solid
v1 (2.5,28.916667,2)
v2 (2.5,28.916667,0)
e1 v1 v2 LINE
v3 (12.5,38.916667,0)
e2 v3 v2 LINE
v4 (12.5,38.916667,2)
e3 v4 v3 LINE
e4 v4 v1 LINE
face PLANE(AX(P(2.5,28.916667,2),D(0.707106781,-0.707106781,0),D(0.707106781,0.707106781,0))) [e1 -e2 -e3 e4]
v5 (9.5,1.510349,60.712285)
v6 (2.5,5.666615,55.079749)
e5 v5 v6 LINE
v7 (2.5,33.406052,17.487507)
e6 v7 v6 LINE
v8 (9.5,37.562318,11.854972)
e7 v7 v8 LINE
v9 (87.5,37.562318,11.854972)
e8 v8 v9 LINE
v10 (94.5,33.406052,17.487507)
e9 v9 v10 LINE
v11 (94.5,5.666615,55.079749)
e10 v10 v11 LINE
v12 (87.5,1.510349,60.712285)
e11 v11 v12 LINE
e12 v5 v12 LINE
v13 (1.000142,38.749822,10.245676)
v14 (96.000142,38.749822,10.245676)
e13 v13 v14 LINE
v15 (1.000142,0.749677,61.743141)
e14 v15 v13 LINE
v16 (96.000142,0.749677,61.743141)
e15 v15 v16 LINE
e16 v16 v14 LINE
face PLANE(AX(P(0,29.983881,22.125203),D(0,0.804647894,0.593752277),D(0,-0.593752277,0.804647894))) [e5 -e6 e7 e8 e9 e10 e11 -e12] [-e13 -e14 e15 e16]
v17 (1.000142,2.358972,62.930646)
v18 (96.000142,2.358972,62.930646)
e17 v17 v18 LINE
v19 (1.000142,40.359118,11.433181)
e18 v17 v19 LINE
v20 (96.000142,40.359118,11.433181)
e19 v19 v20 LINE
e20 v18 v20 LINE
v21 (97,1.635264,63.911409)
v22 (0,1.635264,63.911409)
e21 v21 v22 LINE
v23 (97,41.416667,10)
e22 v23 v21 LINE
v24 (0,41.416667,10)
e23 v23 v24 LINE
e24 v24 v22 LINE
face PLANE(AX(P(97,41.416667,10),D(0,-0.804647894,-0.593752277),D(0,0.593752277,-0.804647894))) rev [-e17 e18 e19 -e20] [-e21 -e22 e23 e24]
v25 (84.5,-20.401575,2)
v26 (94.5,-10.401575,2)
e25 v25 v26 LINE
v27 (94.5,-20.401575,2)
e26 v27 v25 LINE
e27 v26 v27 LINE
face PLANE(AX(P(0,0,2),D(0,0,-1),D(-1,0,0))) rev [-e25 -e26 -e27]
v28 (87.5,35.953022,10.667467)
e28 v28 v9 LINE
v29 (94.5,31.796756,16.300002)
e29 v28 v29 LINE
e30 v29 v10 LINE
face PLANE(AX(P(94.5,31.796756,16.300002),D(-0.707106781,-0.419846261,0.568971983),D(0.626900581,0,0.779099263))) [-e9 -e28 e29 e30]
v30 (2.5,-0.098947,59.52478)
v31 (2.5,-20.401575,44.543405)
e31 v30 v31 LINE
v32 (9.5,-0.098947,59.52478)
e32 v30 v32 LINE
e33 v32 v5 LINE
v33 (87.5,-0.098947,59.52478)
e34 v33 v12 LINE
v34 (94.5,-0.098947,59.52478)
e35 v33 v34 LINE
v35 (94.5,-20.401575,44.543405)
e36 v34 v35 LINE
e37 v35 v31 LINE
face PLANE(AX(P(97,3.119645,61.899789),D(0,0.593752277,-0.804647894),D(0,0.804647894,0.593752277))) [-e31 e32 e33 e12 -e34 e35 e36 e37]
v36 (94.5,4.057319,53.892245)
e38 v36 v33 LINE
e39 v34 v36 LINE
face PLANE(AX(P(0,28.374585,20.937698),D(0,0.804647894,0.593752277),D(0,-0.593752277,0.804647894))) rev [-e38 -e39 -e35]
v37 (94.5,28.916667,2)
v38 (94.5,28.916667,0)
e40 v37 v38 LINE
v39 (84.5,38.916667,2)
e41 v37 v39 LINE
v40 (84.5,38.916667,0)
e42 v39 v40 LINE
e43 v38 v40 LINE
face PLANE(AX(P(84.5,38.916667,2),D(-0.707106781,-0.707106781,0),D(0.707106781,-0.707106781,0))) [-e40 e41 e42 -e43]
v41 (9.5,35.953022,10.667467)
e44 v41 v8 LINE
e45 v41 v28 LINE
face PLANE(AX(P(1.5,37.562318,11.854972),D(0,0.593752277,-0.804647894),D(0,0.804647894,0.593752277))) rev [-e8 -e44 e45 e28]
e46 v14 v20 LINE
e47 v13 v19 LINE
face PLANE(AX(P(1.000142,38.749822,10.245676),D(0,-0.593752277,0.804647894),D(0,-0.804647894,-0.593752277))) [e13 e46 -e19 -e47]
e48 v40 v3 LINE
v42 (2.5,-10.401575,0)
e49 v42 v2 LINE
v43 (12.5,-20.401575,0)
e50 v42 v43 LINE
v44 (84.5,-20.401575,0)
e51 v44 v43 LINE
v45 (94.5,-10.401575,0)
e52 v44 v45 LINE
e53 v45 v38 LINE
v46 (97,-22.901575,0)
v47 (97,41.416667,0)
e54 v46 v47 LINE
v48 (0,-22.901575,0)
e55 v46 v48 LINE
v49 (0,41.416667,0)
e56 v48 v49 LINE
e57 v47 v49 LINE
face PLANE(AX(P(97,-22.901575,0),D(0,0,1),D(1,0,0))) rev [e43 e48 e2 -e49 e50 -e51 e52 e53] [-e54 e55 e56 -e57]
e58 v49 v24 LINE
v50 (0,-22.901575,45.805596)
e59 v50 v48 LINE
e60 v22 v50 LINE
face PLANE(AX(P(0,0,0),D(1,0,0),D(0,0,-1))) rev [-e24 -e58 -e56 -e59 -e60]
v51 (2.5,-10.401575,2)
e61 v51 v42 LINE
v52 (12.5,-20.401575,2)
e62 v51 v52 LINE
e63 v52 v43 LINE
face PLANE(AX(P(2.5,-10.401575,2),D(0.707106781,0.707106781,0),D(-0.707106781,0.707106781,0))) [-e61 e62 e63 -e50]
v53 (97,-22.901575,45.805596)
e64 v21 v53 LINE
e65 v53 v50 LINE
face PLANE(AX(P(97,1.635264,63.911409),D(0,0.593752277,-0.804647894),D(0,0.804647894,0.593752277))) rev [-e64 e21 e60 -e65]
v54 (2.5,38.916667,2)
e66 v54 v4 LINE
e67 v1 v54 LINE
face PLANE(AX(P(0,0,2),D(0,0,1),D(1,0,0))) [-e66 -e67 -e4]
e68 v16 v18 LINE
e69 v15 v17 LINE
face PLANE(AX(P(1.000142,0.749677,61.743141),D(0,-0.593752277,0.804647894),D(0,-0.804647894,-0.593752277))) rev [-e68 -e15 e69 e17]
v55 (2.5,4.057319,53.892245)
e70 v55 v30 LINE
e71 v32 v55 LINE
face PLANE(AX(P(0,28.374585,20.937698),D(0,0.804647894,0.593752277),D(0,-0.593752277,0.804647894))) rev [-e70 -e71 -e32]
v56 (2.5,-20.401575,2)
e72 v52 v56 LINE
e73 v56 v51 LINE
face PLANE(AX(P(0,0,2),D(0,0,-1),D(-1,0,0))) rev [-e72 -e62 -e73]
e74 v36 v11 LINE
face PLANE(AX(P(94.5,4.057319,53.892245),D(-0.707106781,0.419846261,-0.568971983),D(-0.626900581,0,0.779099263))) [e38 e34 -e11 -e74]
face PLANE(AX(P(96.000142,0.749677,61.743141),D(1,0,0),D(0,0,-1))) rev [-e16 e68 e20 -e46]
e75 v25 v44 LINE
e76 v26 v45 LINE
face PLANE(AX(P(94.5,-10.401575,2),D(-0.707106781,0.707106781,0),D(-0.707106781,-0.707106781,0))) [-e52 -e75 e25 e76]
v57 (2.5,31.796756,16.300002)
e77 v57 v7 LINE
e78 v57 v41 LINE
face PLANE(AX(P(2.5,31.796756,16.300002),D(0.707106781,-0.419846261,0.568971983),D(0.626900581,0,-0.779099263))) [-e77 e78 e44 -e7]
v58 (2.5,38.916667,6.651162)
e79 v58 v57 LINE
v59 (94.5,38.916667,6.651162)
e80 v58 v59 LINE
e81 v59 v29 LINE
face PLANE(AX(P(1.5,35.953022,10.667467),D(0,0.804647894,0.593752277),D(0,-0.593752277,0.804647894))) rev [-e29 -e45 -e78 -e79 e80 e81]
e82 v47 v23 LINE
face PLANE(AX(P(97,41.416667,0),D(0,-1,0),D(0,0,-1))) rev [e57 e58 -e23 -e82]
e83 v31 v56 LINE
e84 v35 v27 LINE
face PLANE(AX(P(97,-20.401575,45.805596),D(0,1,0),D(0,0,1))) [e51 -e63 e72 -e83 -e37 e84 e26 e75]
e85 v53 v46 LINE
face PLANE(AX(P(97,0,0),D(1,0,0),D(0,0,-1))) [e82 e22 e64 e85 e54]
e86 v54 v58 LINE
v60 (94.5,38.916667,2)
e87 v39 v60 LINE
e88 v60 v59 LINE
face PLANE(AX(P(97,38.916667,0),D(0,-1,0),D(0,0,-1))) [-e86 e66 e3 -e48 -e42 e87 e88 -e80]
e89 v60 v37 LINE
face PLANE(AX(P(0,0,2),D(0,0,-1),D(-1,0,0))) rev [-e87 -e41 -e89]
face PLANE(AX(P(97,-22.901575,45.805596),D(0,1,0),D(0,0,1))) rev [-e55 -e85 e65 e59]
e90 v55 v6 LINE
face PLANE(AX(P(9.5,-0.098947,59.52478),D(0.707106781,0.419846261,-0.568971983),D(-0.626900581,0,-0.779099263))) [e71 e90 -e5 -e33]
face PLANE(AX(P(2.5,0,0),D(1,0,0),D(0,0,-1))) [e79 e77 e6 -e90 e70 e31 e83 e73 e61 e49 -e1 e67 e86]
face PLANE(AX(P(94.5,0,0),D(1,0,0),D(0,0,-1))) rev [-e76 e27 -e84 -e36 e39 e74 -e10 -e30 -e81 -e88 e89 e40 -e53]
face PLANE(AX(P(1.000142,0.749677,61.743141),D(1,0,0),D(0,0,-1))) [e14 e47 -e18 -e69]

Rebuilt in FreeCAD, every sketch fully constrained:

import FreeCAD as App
import Part
import Sketcher
from FreeCAD import Vector
Q = App.Units.Quantity


def faces_at(feature, points):
    """Names of the faces that lie closest to the given points."""
    faces = feature.Shape.Faces
    near = lambda p: min(range(len(faces)), key=lambda i: faces[i].distToShape(Part.Vertex(*p))[0])
    return sorted({f"Face{near(p) + 1}" for p in points})

doc = App.newDocument("Part")
body = doc.addObject("PartDesign::Body", "Body")

sketch1 = doc.addObject("Sketcher::SketchObject", "Sketch")
body.addObject(sketch1)
sketch1.AttachmentSupport = (doc.YZ_Plane, [""])
sketch1.MapMode = "FlatFace"
sketch1.addGeometry(Part.LineSegment(Vector(41.416667, 0, 0), Vector(41.416667, 10, 0)), False)
sketch1.addGeometry(Part.LineSegment(Vector(41.416667, 10, 0), Vector(1.635264, 63.911409, 0)), False)
sketch1.addGeometry(Part.LineSegment(Vector(1.635264, 63.911409, 0), Vector(-22.901575, 45.805596, 0)), False)
sketch1.addGeometry(Part.LineSegment(Vector(-22.901575, 45.805596, 0), Vector(-22.901575, 0, 0)), False)
sketch1.addGeometry(Part.LineSegment(Vector(-22.901575, 0, 0), Vector(41.416667, 0, 0)), False)
sketch1.addConstraint(Sketcher.Constraint("Coincident", 0, 2, 1, 1))
sketch1.addConstraint(Sketcher.Constraint("Coincident", 1, 2, 2, 1))
sketch1.addConstraint(Sketcher.Constraint("Coincident", 2, 2, 3, 1))
sketch1.addConstraint(Sketcher.Constraint("Coincident", 3, 2, 4, 1))
sketch1.addConstraint(Sketcher.Constraint("Coincident", 4, 2, 0, 1))
sketch1.addConstraint(Sketcher.Constraint("Vertical", 0))
sketch1.addConstraint(Sketcher.Constraint("Vertical", 3))
sketch1.addConstraint(Sketcher.Constraint("Horizontal", 4))
sketch1.addConstraint(Sketcher.Constraint("PointOnObject", 3, 2, -1))
sketch1.addConstraint(Sketcher.Constraint("Perpendicular", 1, 2))
sketch1.addConstraint(Sketcher.Constraint("DistanceY", 0, 1, 0, 2, Q("10 mm")))
sketch1.addConstraint(Sketcher.Constraint("Distance", 1, Q("67 mm")))
sketch1.addConstraint(Sketcher.Constraint("DistanceX", 4, 1, 4, 2, Q("64.318242 mm")))
sketch1.addConstraint(Sketcher.Constraint("DistanceY", 3, 2, 3, 1, Q("45.805596 mm")))
sketch1.addConstraint(Sketcher.Constraint("DistanceX", -1, 1, 0, 2, Q("41.416667 mm")))
pad1 = doc.addObject("PartDesign::Pad", "Pad")
body.addObject(pad1)
pad1.Profile = sketch1
pad1.Length = 97
doc.recompute()

thickness = doc.addObject("PartDesign::Thickness", "Thickness")
body.addObject(thickness)
thickness.Base = (pad1, faces_at(pad1, [(48.5, 9.258, 0), (48.5, 21.526, 36.956)]))
thickness.Value = 2.5
thickness.Reversed = True
thickness.Join = "Intersection"

sketch2 = doc.addObject("Sketcher::SketchObject", "Sketch001")
body.addObject(sketch2)
sketch2.Placement = App.Placement(Vector(0, 31.593177, 23.312707), App.Rotation(Vector(1, 0, 0), Vector(0, 0.593752277, -0.804647894), Vector(0, 0.804647894, 0.593752277), "ZXY"))
sketch2.addGeometry(Part.LineSegment(Vector(1.000142, 14.763634, 0), Vector(1.000142, -49.236366, 0)), False)
sketch2.addGeometry(Part.LineSegment(Vector(1.000142, -49.236366, 0), Vector(96.000142, -49.236366, 0)), False)
sketch2.addGeometry(Part.LineSegment(Vector(96.000142, -49.236366, 0), Vector(96.000142, 14.763634, 0)), False)
sketch2.addGeometry(Part.LineSegment(Vector(96.000142, 14.763634, 0), Vector(1.000142, 14.763634, 0)), False)
sketch2.addConstraint(Sketcher.Constraint("Coincident", 0, 2, 1, 1))
sketch2.addConstraint(Sketcher.Constraint("Coincident", 1, 2, 2, 1))
sketch2.addConstraint(Sketcher.Constraint("Coincident", 2, 2, 3, 1))
sketch2.addConstraint(Sketcher.Constraint("Coincident", 3, 2, 0, 1))
sketch2.addConstraint(Sketcher.Constraint("Vertical", 0))
sketch2.addConstraint(Sketcher.Constraint("Horizontal", 1))
sketch2.addConstraint(Sketcher.Constraint("Vertical", 2))
sketch2.addConstraint(Sketcher.Constraint("Horizontal", 3))
sketch2.addConstraint(Sketcher.Constraint("DistanceX", 1, 1, 1, 2, Q("95 mm")))
sketch2.addConstraint(Sketcher.Constraint("DistanceY", 0, 2, 0, 1, Q("64 mm")))
sketch2.addConstraint(Sketcher.Constraint("DistanceX", -1, 1, 0, 2, Q("1.000142 mm")))
sketch2.addConstraint(Sketcher.Constraint("DistanceY", 0, 2, -1, 1, Q("49.236366 mm")))
pocket1 = doc.addObject("PartDesign::Pocket", "Pocket")
body.addObject(pocket1)
pocket1.Profile = sketch2
pocket1.Length = 2

sketch3 = doc.addObject("Sketcher::SketchObject", "Sketch002")
body.addObject(sketch3)
sketch3.AttachmentSupport = (doc.YZ_Plane, [""])
sketch3.MapMode = "FlatFace"
sketch3.AttachmentOffset = App.Placement(Vector(0, 0, 94.5), App.Rotation())
sketch3.addGeometry(Part.LineSegment(Vector(37.562318, 11.854972, 0), Vector(38.749822, 10.245676, 0)), False)
sketch3.addGeometry(Part.LineSegment(Vector(38.749822, 10.245676, 0), Vector(38.916667, 10.368791, 0)), False)
sketch3.addGeometry(Part.LineSegment(Vector(38.916667, 10.368791, 0), Vector(38.916667, 6.651162, 0)), False)
sketch3.addGeometry(Part.LineSegment(Vector(38.916667, 6.651162, 0), Vector(35.953022, 10.667467, 0)), False)
sketch3.addGeometry(Part.LineSegment(Vector(35.953022, 10.667467, 0), Vector(37.562318, 11.854972, 0)), False)
sketch3.addConstraint(Sketcher.Constraint("Coincident", 0, 2, 1, 1))
sketch3.addConstraint(Sketcher.Constraint("Coincident", 1, 2, 2, 1))
sketch3.addConstraint(Sketcher.Constraint("Coincident", 2, 2, 3, 1))
sketch3.addConstraint(Sketcher.Constraint("Coincident", 3, 2, 4, 1))
sketch3.addConstraint(Sketcher.Constraint("Coincident", 4, 2, 0, 1))
sketch3.addConstraint(Sketcher.Constraint("Vertical", 2))
sketch3.addConstraint(Sketcher.Constraint("Perpendicular", 0, 1))
sketch3.addConstraint(Sketcher.Constraint("Perpendicular", 1, 3))
sketch3.addConstraint(Sketcher.Constraint("Perpendicular", 3, 4))
sketch3.addConstraint(Sketcher.Constraint("Equal", 0, 4))
sketch3.addConstraint(Sketcher.Constraint("Distance", 0, Q("2 mm")))
sketch3.addConstraint(Sketcher.Constraint("DistanceY", 2, 2, 2, 1, Q("3.717629 mm")))
sketch3.addConstraint(Sketcher.Constraint("DistanceX", 3, 2, 0, 2, Q("2.7968 mm")))
sketch3.addConstraint(Sketcher.Constraint("DistanceY", -1, 1, 1, 2, Q("10.368791 mm")))
sketch3.addConstraint(Sketcher.Constraint("DistanceX", -1, 1, 3, 2, Q("35.953022 mm")))
pad2 = doc.addObject("PartDesign::Pad", "Pad001")
body.addObject(pad2)
pad2.Profile = sketch3
pad2.Length = 93
pad2.Reversed = True

sketch4 = doc.addObject("Sketcher::SketchObject", "Sketch003")
body.addObject(sketch4)
sketch4.AttachmentSupport = (doc.XY_Plane, [""])
sketch4.MapMode = "FlatFace"
sketch4.addGeometry(Part.LineSegment(Vector(84.5, -20.401575, 0), Vector(94.5, -10.401575, 0)), False)
sketch4.addGeometry(Part.LineSegment(Vector(94.5, -10.401575, 0), Vector(94.5, -20.401575, 0)), False)
sketch4.addGeometry(Part.LineSegment(Vector(94.5, -20.401575, 0), Vector(84.5, -20.401575, 0)), False)
sketch4.addGeometry(Part.LineSegment(Vector(94.5, 28.916667, 0), Vector(84.5, 38.916667, 0)), False)
sketch4.addGeometry(Part.LineSegment(Vector(84.5, 38.916667, 0), Vector(94.5, 38.916667, 0)), False)
sketch4.addGeometry(Part.LineSegment(Vector(94.5, 38.916667, 0), Vector(94.5, 28.916667, 0)), False)
sketch4.addGeometry(Part.LineSegment(Vector(2.5, 28.916667, 0), Vector(2.5, 38.916667, 0)), False)
sketch4.addGeometry(Part.LineSegment(Vector(2.5, 38.916667, 0), Vector(12.5, 38.916667, 0)), False)
sketch4.addGeometry(Part.LineSegment(Vector(12.5, 38.916667, 0), Vector(2.5, 28.916667, 0)), False)
sketch4.addGeometry(Part.LineSegment(Vector(2.5, -20.401575, 0), Vector(2.5, -10.401575, 0)), False)
sketch4.addGeometry(Part.LineSegment(Vector(2.5, -10.401575, 0), Vector(12.5, -20.401575, 0)), False)
sketch4.addGeometry(Part.LineSegment(Vector(12.5, -20.401575, 0), Vector(2.5, -20.401575, 0)), False)
sketch4.addConstraint(Sketcher.Constraint("Coincident", 0, 2, 1, 1))
sketch4.addConstraint(Sketcher.Constraint("Coincident", 1, 2, 2, 1))
sketch4.addConstraint(Sketcher.Constraint("Coincident", 2, 2, 0, 1))
sketch4.addConstraint(Sketcher.Constraint("Coincident", 3, 2, 4, 1))
sketch4.addConstraint(Sketcher.Constraint("Coincident", 4, 2, 5, 1))
sketch4.addConstraint(Sketcher.Constraint("Coincident", 5, 2, 3, 1))
sketch4.addConstraint(Sketcher.Constraint("Coincident", 6, 2, 7, 1))
sketch4.addConstraint(Sketcher.Constraint("Coincident", 7, 2, 8, 1))
sketch4.addConstraint(Sketcher.Constraint("Coincident", 8, 2, 6, 1))
sketch4.addConstraint(Sketcher.Constraint("Coincident", 9, 2, 10, 1))
sketch4.addConstraint(Sketcher.Constraint("Coincident", 10, 2, 11, 1))
sketch4.addConstraint(Sketcher.Constraint("Coincident", 11, 2, 9, 1))
sketch4.addConstraint(Sketcher.Constraint("Vertical", 1))
sketch4.addConstraint(Sketcher.Constraint("Horizontal", 2))
sketch4.addConstraint(Sketcher.Constraint("Horizontal", 4))
sketch4.addConstraint(Sketcher.Constraint("Vertical", 5))
sketch4.addConstraint(Sketcher.Constraint("Vertical", 6))
sketch4.addConstraint(Sketcher.Constraint("Horizontal", 7))
sketch4.addConstraint(Sketcher.Constraint("Vertical", 9))
sketch4.addConstraint(Sketcher.Constraint("Horizontal", 11))
sketch4.addConstraint(Sketcher.Constraint("Perpendicular", 0, 3))
sketch4.addConstraint(Sketcher.Constraint("Perpendicular", 3, 8))
sketch4.addConstraint(Sketcher.Constraint("Perpendicular", 8, 10))
sketch4.addConstraint(Sketcher.Constraint("Horizontal", 4, 2, 6, 2))
sketch4.addConstraint(Sketcher.Constraint("Horizontal", 5, 2, 8, 2))
sketch4.addConstraint(Sketcher.Constraint("Horizontal", 0, 2, 9, 2))
sketch4.addConstraint(Sketcher.Constraint("Horizontal", 2, 2, 10, 2))
sketch4.addConstraint(Sketcher.Constraint("Vertical", 2, 2, 3, 2))
sketch4.addConstraint(Sketcher.Constraint("Vertical", 1, 2, 4, 2))
sketch4.addConstraint(Sketcher.Constraint("Vertical", 8, 2, 9, 2))
sketch4.addConstraint(Sketcher.Constraint("Vertical", 7, 2, 10, 2))
sketch4.addConstraint(Sketcher.Constraint("DistanceX", 2, 2, 2, 1, Q("10 mm")))
sketch4.addConstraint(Sketcher.Constraint("DistanceX", 6, 2, 3, 2, Q("82 mm")))
sketch4.addConstraint(Sketcher.Constraint("DistanceX", -1, 1, 0, 2, Q("94.5 mm")))
sketch4.addConstraint(Sketcher.Constraint("DistanceY", 0, 2, -1, 1, Q("10.401575 mm")))
sketch4.addConstraint(Sketcher.Constraint("DistanceY", -1, 1, 3, 2, Q("38.916667 mm")))
pad3 = doc.addObject("PartDesign::Pad", "Pad002")
body.addObject(pad3)
pad3.Profile = sketch4
pad3.Length = 2

sketch5 = doc.addObject("Sketcher::SketchObject", "Sketch004")
body.addObject(sketch5)
sketch5.Placement = App.Placement(Vector(0, 29.983881, 22.125203), App.Rotation(Vector(1, 0, 0), Vector(0, 0.593752277, -0.804647894), Vector(0, 0.804647894, 0.593752277), "ZXY"))
sketch5.addGeometry(Part.LineSegment(Vector(2.5, 12.763634, 0), Vector(2.5, 5.763634, 0)), False)
sketch5.addGeometry(Part.LineSegment(Vector(2.5, 5.763634, 0), Vector(9.5, 12.763634, 0)), False)
sketch5.addGeometry(Part.LineSegment(Vector(9.5, 12.763634, 0), Vector(2.5, 12.763634, 0)), False)
sketch5.addGeometry(Part.LineSegment(Vector(2.5, -47.955239, 0), Vector(9.5, -47.955239, 0)), False)
sketch5.addGeometry(Part.LineSegment(Vector(9.5, -47.955239, 0), Vector(2.5, -40.955239, 0)), False)
sketch5.addGeometry(Part.LineSegment(Vector(2.5, -40.955239, 0), Vector(2.5, -47.955239, 0)), False)
sketch5.addGeometry(Part.LineSegment(Vector(94.5, -47.955239, 0), Vector(94.5, -40.955239, 0)), False)
sketch5.addGeometry(Part.LineSegment(Vector(94.5, -40.955239, 0), Vector(87.5, -47.955239, 0)), False)
sketch5.addGeometry(Part.LineSegment(Vector(87.5, -47.955239, 0), Vector(94.5, -47.955239, 0)), False)
sketch5.addGeometry(Part.LineSegment(Vector(94.5, 5.763634, 0), Vector(94.5, 12.763634, 0)), False)
sketch5.addGeometry(Part.LineSegment(Vector(94.5, 12.763634, 0), Vector(87.5, 12.763634, 0)), False)
sketch5.addGeometry(Part.LineSegment(Vector(87.5, 12.763634, 0), Vector(94.5, 5.763634, 0)), False)
sketch5.addConstraint(Sketcher.Constraint("Coincident", 0, 2, 1, 1))
sketch5.addConstraint(Sketcher.Constraint("Coincident", 1, 2, 2, 1))
sketch5.addConstraint(Sketcher.Constraint("Coincident", 2, 2, 0, 1))
sketch5.addConstraint(Sketcher.Constraint("Coincident", 3, 2, 4, 1))
sketch5.addConstraint(Sketcher.Constraint("Coincident", 4, 2, 5, 1))
sketch5.addConstraint(Sketcher.Constraint("Coincident", 5, 2, 3, 1))
sketch5.addConstraint(Sketcher.Constraint("Coincident", 6, 2, 7, 1))
sketch5.addConstraint(Sketcher.Constraint("Coincident", 7, 2, 8, 1))
sketch5.addConstraint(Sketcher.Constraint("Coincident", 8, 2, 6, 1))
sketch5.addConstraint(Sketcher.Constraint("Coincident", 9, 2, 10, 1))
sketch5.addConstraint(Sketcher.Constraint("Coincident", 10, 2, 11, 1))
sketch5.addConstraint(Sketcher.Constraint("Coincident", 11, 2, 9, 1))
sketch5.addConstraint(Sketcher.Constraint("Vertical", 0))
sketch5.addConstraint(Sketcher.Constraint("Horizontal", 2))
sketch5.addConstraint(Sketcher.Constraint("Horizontal", 3))
sketch5.addConstraint(Sketcher.Constraint("Vertical", 5))
sketch5.addConstraint(Sketcher.Constraint("Vertical", 6))
sketch5.addConstraint(Sketcher.Constraint("Horizontal", 8))
sketch5.addConstraint(Sketcher.Constraint("Vertical", 9))
sketch5.addConstraint(Sketcher.Constraint("Horizontal", 10))
sketch5.addConstraint(Sketcher.Constraint("Perpendicular", 1, 4))
sketch5.addConstraint(Sketcher.Constraint("Perpendicular", 4, 7))
sketch5.addConstraint(Sketcher.Constraint("Perpendicular", 7, 11))
sketch5.addConstraint(Sketcher.Constraint("Horizontal", 4, 2, 6, 2))
sketch5.addConstraint(Sketcher.Constraint("Horizontal", 5, 2, 7, 2))
sketch5.addConstraint(Sketcher.Constraint("Horizontal", 2, 2, 9, 2))
sketch5.addConstraint(Sketcher.Constraint("Horizontal", 0, 2, 11, 2))
sketch5.addConstraint(Sketcher.Constraint("Vertical", 1, 2, 3, 2))
sketch5.addConstraint(Sketcher.Constraint("Vertical", 2, 2, 4, 2))
sketch5.addConstraint(Sketcher.Constraint("Vertical", 8, 2, 9, 2))
sketch5.addConstraint(Sketcher.Constraint("Vertical", 7, 2, 10, 2))
sketch5.addConstraint(Sketcher.Constraint("DistanceX", 2, 2, 2, 1, Q("7 mm")))
sketch5.addConstraint(Sketcher.Constraint("DistanceX", 3, 2, 6, 2, Q("85 mm")))
sketch5.addConstraint(Sketcher.Constraint("DistanceX", -1, 1, 0, 2, Q("2.5 mm")))
sketch5.addConstraint(Sketcher.Constraint("DistanceY", 3, 2, -1, 1, Q("47.955239 mm")))
sketch5.addConstraint(Sketcher.Constraint("DistanceY", -1, 1, 0, 2, Q("5.763634 mm")))
pad4 = doc.addObject("PartDesign::Pad", "Pad003")
body.addObject(pad4)
pad4.Profile = sketch5
pad4.Length = 2
pad4.Reversed = True

doc.recompute()
